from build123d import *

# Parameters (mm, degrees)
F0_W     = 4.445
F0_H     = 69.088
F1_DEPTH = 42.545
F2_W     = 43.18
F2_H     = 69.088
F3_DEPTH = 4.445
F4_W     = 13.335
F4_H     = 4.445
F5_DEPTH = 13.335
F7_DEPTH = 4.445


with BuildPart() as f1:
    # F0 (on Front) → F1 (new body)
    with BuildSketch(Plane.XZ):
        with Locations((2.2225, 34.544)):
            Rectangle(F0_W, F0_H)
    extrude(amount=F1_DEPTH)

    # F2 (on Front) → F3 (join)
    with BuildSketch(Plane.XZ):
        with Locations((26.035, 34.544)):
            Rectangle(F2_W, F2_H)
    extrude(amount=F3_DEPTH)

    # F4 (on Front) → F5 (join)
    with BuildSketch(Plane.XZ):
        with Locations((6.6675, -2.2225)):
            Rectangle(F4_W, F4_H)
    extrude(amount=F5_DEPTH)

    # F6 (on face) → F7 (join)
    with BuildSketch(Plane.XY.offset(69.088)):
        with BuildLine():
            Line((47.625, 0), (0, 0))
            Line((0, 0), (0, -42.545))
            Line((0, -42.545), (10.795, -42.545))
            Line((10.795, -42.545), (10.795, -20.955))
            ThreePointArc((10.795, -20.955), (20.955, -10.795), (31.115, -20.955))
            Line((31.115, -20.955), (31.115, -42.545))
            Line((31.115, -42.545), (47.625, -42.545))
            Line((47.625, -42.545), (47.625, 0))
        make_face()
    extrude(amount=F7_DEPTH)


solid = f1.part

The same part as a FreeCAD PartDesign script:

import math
import FreeCAD as App
import Part
import Sketcher
Q = App.Units.Quantity

doc = App.newDocument("Part")
body = doc.addObject("PartDesign::Body", "Body")

sketch1 = body.newObject("Sketcher::SketchObject", "Sketch")
sketch1.AttachmentSupport = (doc.getObject("XZ_Plane"), [""])
sketch1.MapMode = "FlatFace"
sketch1.addGeometry([
    Part.LineSegment(App.Vector(0, 69.1, 0), App.Vector(0, 0, 0)),
    Part.LineSegment(App.Vector(0, 0, 0), App.Vector(4.4, 0, 0)),
    Part.LineSegment(App.Vector(4.4, 0, 0), App.Vector(4.4, 69.1, 0)),
    Part.LineSegment(App.Vector(4.4, 69.1, 0), App.Vector(0, 69.1, 0)),
], False)
sketch1.addConstraint([
    Sketcher.Constraint("Coincident", 0, 2, 1, 1),
    Sketcher.Constraint("Coincident", 1, 2, 2, 1),
    Sketcher.Constraint("Coincident", 2, 2, 3, 1),
    Sketcher.Constraint("Coincident", 3, 2, 0, 1),
    Sketcher.Constraint("Vertical", 0),
    Sketcher.Constraint("Horizontal", 1),
    Sketcher.Constraint("Vertical", 2),
    Sketcher.Constraint("Horizontal", 3),
    Sketcher.Constraint("Coincident", 0, 2, -1, 1),
    Sketcher.Constraint("DistanceY", 0, 2, 0, 1, Q("2.72 in")),
    Sketcher.Constraint("DistanceX", 1, 1, 1, 2, Q("0.175 in")),
])
pad1 = body.newObject("PartDesign::Pad", "Pad")
pad1.Profile = sketch1
pad1.Length = Q("1.675 in")

sketch2 = body.newObject("Sketcher::SketchObject", "Sketch001")
sketch2.AttachmentSupport = (doc.getObject("XZ_Plane"), [""])
sketch2.MapMode = "FlatFace"
sketch2.addGeometry([
    Part.LineSegment(App.Vector(4, 69, 0), App.Vector(4, 0, 0)),
    Part.LineSegment(App.Vector(4, 0, 0), App.Vector(48, 0, 0)),
    Part.LineSegment(App.Vector(48, 0, 0), App.Vector(48, 69, 0)),
    Part.LineSegment(App.Vector(48, 69, 0), App.Vector(4, 69, 0)),
], False)
sketch2.addConstraint([
    Sketcher.Constraint("Coincident", 0, 2, 1, 1),
    Sketcher.Constraint("Coincident", 1, 2, 2, 1),
    Sketcher.Constraint("Coincident", 2, 2, 3, 1),
    Sketcher.Constraint("Coincident", 3, 2, 0, 1),
    Sketcher.Constraint("Vertical", 0),
    Sketcher.Constraint("Horizontal", 1),
    Sketcher.Constraint("Vertical", 2),
    Sketcher.Constraint("Horizontal", 3),
    Sketcher.Constraint("PointOnObject", 0, 2, -1),
    Sketcher.Constraint("DistanceX", 1, 1, 1, 2, Q("1.7 in")),
    Sketcher.Constraint("DistanceY", 0, 2, 0, 1, Q("2.72 in")),
    Sketcher.Constraint("DistanceX", -1, 1, 0, 2, Q("0.175 in")),
])
pad2 = body.newObject("PartDesign::Pad", "Pad001")
pad2.Profile = sketch2
pad2.Length = Q("0.175 in")

sketch3 = body.newObject("Sketcher::SketchObject", "Sketch002")
sketch3.AttachmentSupport = (doc.getObject("XZ_Plane"), [""])
sketch3.MapMode = "FlatFace"
sketch3.addGeometry([
    Part.LineSegment(App.Vector(0, 0, 0), App.Vector(0, -4.4, 0)),
    Part.LineSegment(App.Vector(0, -4.4, 0), App.Vector(13.3, -4.4, 0)),
    Part.LineSegment(App.Vector(13.3, -4.4, 0), App.Vector(13.3, 0, 0)),
    Part.LineSegment(App.Vector(13.3, 0, 0), App.Vector(0, 0, 0)),
], False)
sketch3.addConstraint([
    Sketcher.Constraint("Coincident", 0, 2, 1, 1),
    Sketcher.Constraint("Coincident", 1, 2, 2, 1),
    Sketcher.Constraint("Coincident", 2, 2, 3, 1),
    Sketcher.Constraint("Coincident", 3, 2, 0, 1),
    Sketcher.Constraint("Vertical", 0),
    Sketcher.Constraint("Horizontal", 1),
    Sketcher.Constraint("Vertical", 2),
    Sketcher.Constraint("Horizontal", 3),
    Sketcher.Constraint("Coincident", 3, 2, -1, 1),
    Sketcher.Constraint("DistanceX", 1, 1, 1, 2, Q("0.525 in")),
    Sketcher.Constraint("DistanceY", 0, 2, 0, 1, Q("0.175 in")),
])
pad3 = body.newObject("PartDesign::Pad", "Pad002")
pad3.Profile = sketch3
pad3.Length = Q("0.525 in")

sketch4 = body.newObject("Sketcher::SketchObject", "Sketch003")
sketch4.AttachmentSupport = (doc.getObject("XY_Plane"), [""])
sketch4.MapMode = "FlatFace"
sketch4.AttachmentOffset = App.Placement(App.Vector(0, 0, 2.72 * 25.4), App.Rotation())
sketch4.addGeometry([
    Part.LineSegment(App.Vector(48, 0, 0), App.Vector(0, 0, 0)),
    Part.LineSegment(App.Vector(0, 0, 0), App.Vector(0, -43, 0)),
    Part.LineSegment(App.Vector(0, -43, 0), App.Vector(11, -43, 0)),
    Part.LineSegment(App.Vector(11, -43, 0), App.Vector(11, -21, 0)),
    Part.ArcOfCircle(Part.Circle(App.Vector(21, -21, 0), App.Vector(0, 0, 1), 10), math.radians(0), math.radians(180)),
    Part.LineSegment(App.Vector(31, -21, 0), App.Vector(31, -43, 0)),
    Part.LineSegment(App.Vector(31, -43, 0), App.Vector(48, -43, 0)),
    Part.LineSegment(App.Vector(48, -43, 0), App.Vector(48, 0, 0)),
], False)
sketch4.addConstraint([
    Sketcher.Constraint("Coincident", 0, 2, 1, 1),
    Sketcher.Constraint("Coincident", 1, 2, 2, 1),
    Sketcher.Constraint("Coincident", 2, 2, 3, 1),
    Sketcher.Constraint("Tangent", 3, 2, 4, 2),
    Sketcher.Constraint("Tangent", 4, 1, 5, 1),
    Sketcher.Constraint("Coincident", 5, 2, 6, 1),
    Sketcher.Constraint("Coincident", 6, 2, 7, 1),
    Sketcher.Constraint("Coincident", 7, 2, 0, 1),
    Sketcher.Constraint("Horizontal", 0),
    Sketcher.Constraint("Vertical", 1),
    Sketcher.Constraint("Horizontal", 2),
    Sketcher.Constraint("Vertical", 3),
    Sketcher.Constraint("Vertical", 5),
    Sketcher.Constraint("Horizontal", 6),
    Sketcher.Constraint("Vertical", 7),
    Sketcher.Constraint("Coincident", 0, 2, -1, 1),
    Sketcher.Constraint("Horizontal", 2, 2, 5, 2),
    Sketcher.Constraint("Radius", 4, Q("0.4 in")),
    Sketcher.Constraint("DistanceX", 6, 1, 6, 2, Q("0.65 in")),
    Sketcher.Constraint("DistanceY", 3, 1, 3, 2, Q("0.85 in")),
    Sketcher.Constraint("DistanceX", 0, 2, 0, 1, Q("1.875 in")),
    Sketcher.Constraint("DistanceY", 1, 2, 1, 1, Q("1.675 in")),
])
pad4 = body.newObject("PartDesign::Pad", "Pad003")
pad4.Profile = sketch4
pad4.Length = Q("0.175 in")

doc.recompute()
